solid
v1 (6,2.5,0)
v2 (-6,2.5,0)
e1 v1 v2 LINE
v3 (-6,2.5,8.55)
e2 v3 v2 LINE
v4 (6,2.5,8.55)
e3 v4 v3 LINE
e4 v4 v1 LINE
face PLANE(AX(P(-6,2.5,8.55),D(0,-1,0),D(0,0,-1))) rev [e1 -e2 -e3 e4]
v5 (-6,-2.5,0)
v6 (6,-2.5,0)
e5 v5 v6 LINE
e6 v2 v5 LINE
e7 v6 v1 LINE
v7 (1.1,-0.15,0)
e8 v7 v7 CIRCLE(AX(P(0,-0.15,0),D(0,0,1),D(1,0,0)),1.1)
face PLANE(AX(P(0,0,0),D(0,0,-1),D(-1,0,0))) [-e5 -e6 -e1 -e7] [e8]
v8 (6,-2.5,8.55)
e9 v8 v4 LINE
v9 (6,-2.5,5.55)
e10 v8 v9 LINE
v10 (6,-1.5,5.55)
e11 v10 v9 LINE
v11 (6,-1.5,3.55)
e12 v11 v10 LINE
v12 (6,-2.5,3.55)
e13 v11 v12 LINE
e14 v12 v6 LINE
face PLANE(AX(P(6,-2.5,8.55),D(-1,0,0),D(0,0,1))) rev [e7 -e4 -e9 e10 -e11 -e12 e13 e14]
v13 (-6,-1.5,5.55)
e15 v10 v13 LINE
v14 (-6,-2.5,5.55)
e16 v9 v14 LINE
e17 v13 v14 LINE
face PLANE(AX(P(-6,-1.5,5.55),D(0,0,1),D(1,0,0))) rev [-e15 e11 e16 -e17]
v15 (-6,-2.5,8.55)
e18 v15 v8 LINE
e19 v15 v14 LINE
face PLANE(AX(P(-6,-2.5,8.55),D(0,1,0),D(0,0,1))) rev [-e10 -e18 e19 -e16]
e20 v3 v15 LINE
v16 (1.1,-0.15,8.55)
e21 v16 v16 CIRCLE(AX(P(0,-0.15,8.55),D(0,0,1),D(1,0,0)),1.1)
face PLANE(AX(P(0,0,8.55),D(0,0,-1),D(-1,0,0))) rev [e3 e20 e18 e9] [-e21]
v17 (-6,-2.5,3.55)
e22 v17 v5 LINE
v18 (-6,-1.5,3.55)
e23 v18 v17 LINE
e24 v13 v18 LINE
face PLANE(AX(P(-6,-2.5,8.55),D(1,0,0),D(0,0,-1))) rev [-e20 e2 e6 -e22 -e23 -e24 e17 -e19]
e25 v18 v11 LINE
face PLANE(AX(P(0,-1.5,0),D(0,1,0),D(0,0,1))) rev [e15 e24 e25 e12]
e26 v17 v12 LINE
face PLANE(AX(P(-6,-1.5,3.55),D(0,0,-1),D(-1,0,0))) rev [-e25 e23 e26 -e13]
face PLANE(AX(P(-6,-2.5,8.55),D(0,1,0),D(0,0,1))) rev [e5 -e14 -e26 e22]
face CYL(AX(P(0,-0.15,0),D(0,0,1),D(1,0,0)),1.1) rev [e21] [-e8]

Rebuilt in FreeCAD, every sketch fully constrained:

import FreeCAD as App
import Part
import Sketcher

V = App.Vector
Q = App.Units.Quantity


def add_polygon(sketch, points):
    """Adds a closed chain of lines whose ends are joined by coincident constraints."""
    first, n = sketch.GeometryCount, len(points)
    for a, b in zip(points, points[1:] + points[:1]):
        sketch.addGeometry(Part.LineSegment(App.Vector(*a, 0), App.Vector(*b, 0)), False)
    for i in range(n):
        sketch.addConstraint(Sketcher.Constraint("Coincident", first + i, 2, first + (i + 1) % n, 1))

doc = App.newDocument("Part")
body = doc.addObject("PartDesign::Body", "Body")

# Sketch on XY plane
sketch1 = body.newObject("Sketcher::SketchObject", "Sketch")
sketch1.AttachmentSupport = (doc.getObject("XY_Plane"), [""])
sketch1.MapMode = "FlatFace"
add_polygon(sketch1, [(-6, 2), (-6, -2), (6, -2), (6, 2)])  # lines 0-3
sketch1.addConstraint([
    Sketcher.Constraint("Vertical", 0),
    Sketcher.Constraint("Horizontal", 1),
    Sketcher.Constraint("Vertical", 2),
    Sketcher.Constraint("Horizontal", 3),
    Sketcher.Constraint("Symmetric", 0, 2, 2, 2, -1, 1),
    Sketcher.Constraint("DistanceX", 1, 1, 1, 2, Q("12 mm")),
    Sketcher.Constraint("DistanceY", 0, 2, 0, 1, Q("5 mm")),
])
pad1 = body.newObject("PartDesign::Pad", "Pad")
pad1.Profile = sketch1
pad1.Length = 8.55

# Sketch on XY plane
sketch2 = body.newObject("Sketcher::SketchObject", "Sketch001")
sketch2.AttachmentSupport = (doc.getObject("XY_Plane"), [""])
sketch2.MapMode = "FlatFace"
sketch2.AttachmentOffset = App.Placement(V(0, 0, 8.55), App.Rotation())
sketch2.addGeometry(Part.Circle(V(0, -0.1, 0), V(0, 0, 1), 1.1), False)
sketch2.addConstraint([
    Sketcher.Constraint("PointOnObject", 0, 3, -2),
    Sketcher.Constraint("Diameter", 0, Q("2.2 mm")),
    Sketcher.Constraint("DistanceY", 0, 3, -1, 1, Q("0.15 mm")),
])
pocket1 = body.newObject("PartDesign::Pocket", "Pocket")
pocket1.Profile = sketch2
pocket1.Type = "ThroughAll"

# Sketch on XZ plane
sketch3 = body.newObject("Sketcher::SketchObject", "Sketch002")
sketch3.AttachmentSupport = (doc.getObject("XZ_Plane"), [""])
sketch3.MapMode = "FlatFace"
sketch3.AttachmentOffset = App.Placement(V(0, 0, 2.5), App.Rotation())
add_polygon(sketch3, [(6, 3.5), (6, 5.5), (-6, 5.5), (-6, 3.5)])  # lines 0-3
sketch3.addConstraint([
    Sketcher.Constraint("Vertical", 0),
    Sketcher.Constraint("Horizontal", 1),
    Sketcher.Constraint("Vertical", 2),
    Sketcher.Constraint("Horizontal", 3),
    Sketcher.Constraint("DistanceX", 1, 2, 1, 1, Q("12 mm")),
    Sketcher.Constraint("DistanceY", 0, 1, 0, 2, Q("2 mm")),
    Sketcher.Constraint("DistanceX", -1, 1, 0, 2, Q("6 mm")),
    Sketcher.Constraint("DistanceY", -1, 1, 0, 2, Q("5.55 mm")),
])
pocket2 = body.newObject("PartDesign::Pocket", "Pocket001")
pocket2.Profile = sketch3
pocket2.Length = 1

doc.recompute()
